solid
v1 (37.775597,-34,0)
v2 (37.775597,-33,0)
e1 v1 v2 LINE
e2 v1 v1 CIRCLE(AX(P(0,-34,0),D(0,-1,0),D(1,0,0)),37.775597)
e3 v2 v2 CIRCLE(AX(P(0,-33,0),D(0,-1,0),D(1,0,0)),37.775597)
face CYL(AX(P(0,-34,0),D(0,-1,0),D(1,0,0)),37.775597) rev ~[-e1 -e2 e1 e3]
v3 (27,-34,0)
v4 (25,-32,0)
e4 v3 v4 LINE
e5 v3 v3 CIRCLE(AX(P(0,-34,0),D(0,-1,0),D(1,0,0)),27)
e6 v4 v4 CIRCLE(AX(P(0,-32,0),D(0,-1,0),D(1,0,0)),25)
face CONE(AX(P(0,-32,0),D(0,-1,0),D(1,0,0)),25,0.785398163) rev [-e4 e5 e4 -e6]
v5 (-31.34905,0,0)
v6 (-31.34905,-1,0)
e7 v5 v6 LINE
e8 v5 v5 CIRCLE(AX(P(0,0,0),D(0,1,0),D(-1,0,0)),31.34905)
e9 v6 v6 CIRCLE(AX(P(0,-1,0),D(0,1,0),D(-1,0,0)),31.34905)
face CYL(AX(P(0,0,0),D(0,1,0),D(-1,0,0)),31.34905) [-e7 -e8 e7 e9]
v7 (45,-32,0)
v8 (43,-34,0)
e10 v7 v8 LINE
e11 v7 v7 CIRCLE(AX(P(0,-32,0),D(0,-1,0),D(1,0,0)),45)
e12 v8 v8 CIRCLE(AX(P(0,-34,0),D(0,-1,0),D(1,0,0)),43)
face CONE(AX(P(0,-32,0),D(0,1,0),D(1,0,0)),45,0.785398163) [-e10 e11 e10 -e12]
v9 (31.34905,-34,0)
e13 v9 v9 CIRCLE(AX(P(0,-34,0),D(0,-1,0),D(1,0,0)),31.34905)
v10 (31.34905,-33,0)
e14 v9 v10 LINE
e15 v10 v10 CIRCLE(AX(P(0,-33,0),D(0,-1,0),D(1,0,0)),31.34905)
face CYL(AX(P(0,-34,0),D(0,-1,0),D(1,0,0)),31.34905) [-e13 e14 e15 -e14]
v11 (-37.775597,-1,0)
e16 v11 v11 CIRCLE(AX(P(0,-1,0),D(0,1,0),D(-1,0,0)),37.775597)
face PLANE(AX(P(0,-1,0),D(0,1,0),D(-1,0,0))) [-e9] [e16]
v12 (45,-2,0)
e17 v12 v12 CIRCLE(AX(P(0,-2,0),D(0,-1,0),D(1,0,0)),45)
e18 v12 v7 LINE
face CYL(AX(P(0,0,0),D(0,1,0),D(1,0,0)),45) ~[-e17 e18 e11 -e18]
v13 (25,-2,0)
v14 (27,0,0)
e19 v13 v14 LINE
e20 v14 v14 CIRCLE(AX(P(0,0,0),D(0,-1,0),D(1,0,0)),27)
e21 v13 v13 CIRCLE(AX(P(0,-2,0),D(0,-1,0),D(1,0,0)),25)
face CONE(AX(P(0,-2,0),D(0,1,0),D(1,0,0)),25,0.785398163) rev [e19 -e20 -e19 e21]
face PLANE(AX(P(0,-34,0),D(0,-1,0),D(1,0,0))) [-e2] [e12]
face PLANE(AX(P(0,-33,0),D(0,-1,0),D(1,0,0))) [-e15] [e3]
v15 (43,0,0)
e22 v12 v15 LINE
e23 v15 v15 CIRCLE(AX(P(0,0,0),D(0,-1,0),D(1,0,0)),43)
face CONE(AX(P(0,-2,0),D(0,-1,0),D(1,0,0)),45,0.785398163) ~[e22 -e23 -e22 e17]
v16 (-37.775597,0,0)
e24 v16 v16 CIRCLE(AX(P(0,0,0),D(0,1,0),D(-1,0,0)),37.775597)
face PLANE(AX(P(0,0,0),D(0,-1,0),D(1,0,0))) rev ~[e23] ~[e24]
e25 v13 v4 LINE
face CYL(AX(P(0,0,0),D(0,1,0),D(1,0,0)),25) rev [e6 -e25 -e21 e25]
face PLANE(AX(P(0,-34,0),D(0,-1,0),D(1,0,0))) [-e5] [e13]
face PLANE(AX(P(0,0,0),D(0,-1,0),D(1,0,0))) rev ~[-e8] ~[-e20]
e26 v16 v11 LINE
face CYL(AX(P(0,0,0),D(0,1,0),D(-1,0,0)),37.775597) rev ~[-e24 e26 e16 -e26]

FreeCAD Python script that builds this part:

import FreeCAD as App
import Part
import Sketcher

V = App.Vector


def edges_at(feature, points):
    """Names of the edges that pass closest to the given points."""
    edges = feature.Shape.Edges
    near = lambda p: min(range(len(edges)), key=lambda i: edges[i].distToShape(Part.Vertex(*p))[0])
    return sorted({f"Edge{near(p) + 1}" for p in points})

doc = App.newDocument("Part")
body = doc.addObject("PartDesign::Body", "Body")

sketch1 = body.newObject("Sketcher::SketchObject", "Sketch")
sketch1.AttachmentSupport = (doc.getObject("XZ_Plane"), [""])
sketch1.MapMode = "FlatFace"
sketch1.addGeometry([
    Part.Circle(V(0, 0, 0), V(0, 0, 1), 45),
    Part.Circle(V(0, 0, 0), V(0, 0, 1), 25),
], False)
sketch1.addConstraint([
    Sketcher.Constraint("Coincident", 0, 3, -1, 1),
    Sketcher.Constraint("Coincident", 1, 3, -1, 1),
    Sketcher.Constraint("Diameter", 0, 90.0),
    Sketcher.Constraint("Diameter", 1, 50.0),
])
pad1 = body.newObject("PartDesign::Pad", "Pad")
pad1.Profile = sketch1
pad1.Length = 34
doc.recompute()

chamfer = body.newObject("PartDesign::Chamfer", "Chamfer")
chamfer.Base = (pad1, edges_at(pad1, [(-45, -34, 0), (-45, 0, 0)]))
chamfer.Size = 2
doc.recompute()

chamfer2 = body.newObject("PartDesign::Chamfer", "Chamfer001")
chamfer2.Base = (chamfer, edges_at(chamfer, [(-25, -34, 0)]))
chamfer2.Size = 2
doc.recompute()

chamfer3 = body.newObject("PartDesign::Chamfer", "Chamfer002")
chamfer3.Base = (chamfer2, edges_at(chamfer2, [(-25, 0, 0)]))
chamfer3.Size = 2

sketch2 = body.newObject("Sketcher::SketchObject", "Sketch001")
sketch2.AttachmentSupport = (doc.getObject("XZ_Plane"), [""])
sketch2.MapMode = "FlatFace"
sketch2.addGeometry([
    Part.Circle(V(0, 0, 0), V(0, 0, 1), 38),
    Part.Circle(V(0, 0, 0), V(0, 0, 1), 31),
], False)
sketch2.addConstraint([
    Sketcher.Constraint("Coincident", 0, 3, -1, 1),
    Sketcher.Constraint("Coincident", 1, 3, -1, 1),
    Sketcher.Constraint("Diameter", 1, 62.6981),
    Sketcher.Constraint("Diameter", 0, 75.551194),
])
pocket1 = body.newObject("PartDesign::Pocket", "Pocket")
pocket1.Profile = sketch2
pocket1.Length = 1
pocket1.Reversed = True

sketch3 = body.newObject("Sketcher::SketchObject", "Sketch002")
sketch3.AttachmentSupport = (doc.getObject("XZ_Plane"), [""])
sketch3.MapMode = "FlatFace"
sketch3.AttachmentOffset = App.Placement(V(0, 0, 34), App.Rotation())
sketch3.addGeometry([
    Part.Circle(V(0, 0, 0), V(0, 0, 1), 38),
    Part.Circle(V(0, 0, 0), V(0, 0, 1), 31),
], False)
sketch3.addConstraint([
    Sketcher.Constraint("Coincident", 0, 3, -1, 1),
    Sketcher.Constraint("Coincident", 1, 3, -1, 1),
    Sketcher.Constraint("Diameter", 1, 62.6981),
    Sketcher.Constraint("Diameter", 0, 75.551194),
])
pocket2 = body.newObject("PartDesign::Pocket", "Pocket001")
pocket2.Profile = sketch3
pocket2.Length = 1

doc.recompute()
